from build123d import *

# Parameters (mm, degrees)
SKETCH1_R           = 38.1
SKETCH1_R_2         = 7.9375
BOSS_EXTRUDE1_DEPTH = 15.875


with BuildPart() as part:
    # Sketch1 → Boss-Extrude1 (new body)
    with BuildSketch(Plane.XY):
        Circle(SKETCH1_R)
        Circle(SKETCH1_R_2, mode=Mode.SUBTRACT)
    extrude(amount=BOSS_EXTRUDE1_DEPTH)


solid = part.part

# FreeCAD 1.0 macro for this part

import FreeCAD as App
import Part
import Sketcher
Q = App.Units.Quantity

doc = App.newDocument("Part")
params = doc.addObject("Spreadsheet::Sheet", "Params")
for row, (alias, value) in enumerate([
    ("sketch1_diameter", "3 in"),
    ("sketch1_diameter2", "0.625 in"),
    ("pad1_length", "0.625 in"),
], start=1):
    params.set(f"A{row}", alias)
    params.set(f"B{row}", "=" + value)
    params.setAlias(f"B{row}", alias)

body = doc.addObject("PartDesign::Body", "Body")

sketch1 = body.newObject("Sketcher::SketchObject", "Sketch")
sketch1.AttachmentSupport = (doc.getObject("XY_Plane"), [""])
sketch1.MapMode = "FlatFace"
sketch1.addGeometry([
    Part.Circle(App.Vector(0, 0, 0), App.Vector(0, 0, 1), 38),
    Part.Circle(App.Vector(0, 0, 0), App.Vector(0, 0, 1), 8),
], False)
sketch1.addConstraint([
    Sketcher.Constraint("Coincident", 0, 3, -1, 1),
    Sketcher.Constraint("Coincident", 1, 3, -1, 1),
    Sketcher.Constraint("Diameter", 0, Q("3 in")),
    Sketcher.Constraint("Diameter", 1, Q("0.625 in")),
])
sketch1.setExpression("Constraints[2]", "Params.sketch1_diameter")
sketch1.setExpression("Constraints[3]", "Params.sketch1_diameter2")
pad1 = body.newObject("PartDesign::Pad", "Pad")
pad1.Profile = sketch1
pad1.setExpression("Length", "Params.pad1_length")

doc.recompute()
